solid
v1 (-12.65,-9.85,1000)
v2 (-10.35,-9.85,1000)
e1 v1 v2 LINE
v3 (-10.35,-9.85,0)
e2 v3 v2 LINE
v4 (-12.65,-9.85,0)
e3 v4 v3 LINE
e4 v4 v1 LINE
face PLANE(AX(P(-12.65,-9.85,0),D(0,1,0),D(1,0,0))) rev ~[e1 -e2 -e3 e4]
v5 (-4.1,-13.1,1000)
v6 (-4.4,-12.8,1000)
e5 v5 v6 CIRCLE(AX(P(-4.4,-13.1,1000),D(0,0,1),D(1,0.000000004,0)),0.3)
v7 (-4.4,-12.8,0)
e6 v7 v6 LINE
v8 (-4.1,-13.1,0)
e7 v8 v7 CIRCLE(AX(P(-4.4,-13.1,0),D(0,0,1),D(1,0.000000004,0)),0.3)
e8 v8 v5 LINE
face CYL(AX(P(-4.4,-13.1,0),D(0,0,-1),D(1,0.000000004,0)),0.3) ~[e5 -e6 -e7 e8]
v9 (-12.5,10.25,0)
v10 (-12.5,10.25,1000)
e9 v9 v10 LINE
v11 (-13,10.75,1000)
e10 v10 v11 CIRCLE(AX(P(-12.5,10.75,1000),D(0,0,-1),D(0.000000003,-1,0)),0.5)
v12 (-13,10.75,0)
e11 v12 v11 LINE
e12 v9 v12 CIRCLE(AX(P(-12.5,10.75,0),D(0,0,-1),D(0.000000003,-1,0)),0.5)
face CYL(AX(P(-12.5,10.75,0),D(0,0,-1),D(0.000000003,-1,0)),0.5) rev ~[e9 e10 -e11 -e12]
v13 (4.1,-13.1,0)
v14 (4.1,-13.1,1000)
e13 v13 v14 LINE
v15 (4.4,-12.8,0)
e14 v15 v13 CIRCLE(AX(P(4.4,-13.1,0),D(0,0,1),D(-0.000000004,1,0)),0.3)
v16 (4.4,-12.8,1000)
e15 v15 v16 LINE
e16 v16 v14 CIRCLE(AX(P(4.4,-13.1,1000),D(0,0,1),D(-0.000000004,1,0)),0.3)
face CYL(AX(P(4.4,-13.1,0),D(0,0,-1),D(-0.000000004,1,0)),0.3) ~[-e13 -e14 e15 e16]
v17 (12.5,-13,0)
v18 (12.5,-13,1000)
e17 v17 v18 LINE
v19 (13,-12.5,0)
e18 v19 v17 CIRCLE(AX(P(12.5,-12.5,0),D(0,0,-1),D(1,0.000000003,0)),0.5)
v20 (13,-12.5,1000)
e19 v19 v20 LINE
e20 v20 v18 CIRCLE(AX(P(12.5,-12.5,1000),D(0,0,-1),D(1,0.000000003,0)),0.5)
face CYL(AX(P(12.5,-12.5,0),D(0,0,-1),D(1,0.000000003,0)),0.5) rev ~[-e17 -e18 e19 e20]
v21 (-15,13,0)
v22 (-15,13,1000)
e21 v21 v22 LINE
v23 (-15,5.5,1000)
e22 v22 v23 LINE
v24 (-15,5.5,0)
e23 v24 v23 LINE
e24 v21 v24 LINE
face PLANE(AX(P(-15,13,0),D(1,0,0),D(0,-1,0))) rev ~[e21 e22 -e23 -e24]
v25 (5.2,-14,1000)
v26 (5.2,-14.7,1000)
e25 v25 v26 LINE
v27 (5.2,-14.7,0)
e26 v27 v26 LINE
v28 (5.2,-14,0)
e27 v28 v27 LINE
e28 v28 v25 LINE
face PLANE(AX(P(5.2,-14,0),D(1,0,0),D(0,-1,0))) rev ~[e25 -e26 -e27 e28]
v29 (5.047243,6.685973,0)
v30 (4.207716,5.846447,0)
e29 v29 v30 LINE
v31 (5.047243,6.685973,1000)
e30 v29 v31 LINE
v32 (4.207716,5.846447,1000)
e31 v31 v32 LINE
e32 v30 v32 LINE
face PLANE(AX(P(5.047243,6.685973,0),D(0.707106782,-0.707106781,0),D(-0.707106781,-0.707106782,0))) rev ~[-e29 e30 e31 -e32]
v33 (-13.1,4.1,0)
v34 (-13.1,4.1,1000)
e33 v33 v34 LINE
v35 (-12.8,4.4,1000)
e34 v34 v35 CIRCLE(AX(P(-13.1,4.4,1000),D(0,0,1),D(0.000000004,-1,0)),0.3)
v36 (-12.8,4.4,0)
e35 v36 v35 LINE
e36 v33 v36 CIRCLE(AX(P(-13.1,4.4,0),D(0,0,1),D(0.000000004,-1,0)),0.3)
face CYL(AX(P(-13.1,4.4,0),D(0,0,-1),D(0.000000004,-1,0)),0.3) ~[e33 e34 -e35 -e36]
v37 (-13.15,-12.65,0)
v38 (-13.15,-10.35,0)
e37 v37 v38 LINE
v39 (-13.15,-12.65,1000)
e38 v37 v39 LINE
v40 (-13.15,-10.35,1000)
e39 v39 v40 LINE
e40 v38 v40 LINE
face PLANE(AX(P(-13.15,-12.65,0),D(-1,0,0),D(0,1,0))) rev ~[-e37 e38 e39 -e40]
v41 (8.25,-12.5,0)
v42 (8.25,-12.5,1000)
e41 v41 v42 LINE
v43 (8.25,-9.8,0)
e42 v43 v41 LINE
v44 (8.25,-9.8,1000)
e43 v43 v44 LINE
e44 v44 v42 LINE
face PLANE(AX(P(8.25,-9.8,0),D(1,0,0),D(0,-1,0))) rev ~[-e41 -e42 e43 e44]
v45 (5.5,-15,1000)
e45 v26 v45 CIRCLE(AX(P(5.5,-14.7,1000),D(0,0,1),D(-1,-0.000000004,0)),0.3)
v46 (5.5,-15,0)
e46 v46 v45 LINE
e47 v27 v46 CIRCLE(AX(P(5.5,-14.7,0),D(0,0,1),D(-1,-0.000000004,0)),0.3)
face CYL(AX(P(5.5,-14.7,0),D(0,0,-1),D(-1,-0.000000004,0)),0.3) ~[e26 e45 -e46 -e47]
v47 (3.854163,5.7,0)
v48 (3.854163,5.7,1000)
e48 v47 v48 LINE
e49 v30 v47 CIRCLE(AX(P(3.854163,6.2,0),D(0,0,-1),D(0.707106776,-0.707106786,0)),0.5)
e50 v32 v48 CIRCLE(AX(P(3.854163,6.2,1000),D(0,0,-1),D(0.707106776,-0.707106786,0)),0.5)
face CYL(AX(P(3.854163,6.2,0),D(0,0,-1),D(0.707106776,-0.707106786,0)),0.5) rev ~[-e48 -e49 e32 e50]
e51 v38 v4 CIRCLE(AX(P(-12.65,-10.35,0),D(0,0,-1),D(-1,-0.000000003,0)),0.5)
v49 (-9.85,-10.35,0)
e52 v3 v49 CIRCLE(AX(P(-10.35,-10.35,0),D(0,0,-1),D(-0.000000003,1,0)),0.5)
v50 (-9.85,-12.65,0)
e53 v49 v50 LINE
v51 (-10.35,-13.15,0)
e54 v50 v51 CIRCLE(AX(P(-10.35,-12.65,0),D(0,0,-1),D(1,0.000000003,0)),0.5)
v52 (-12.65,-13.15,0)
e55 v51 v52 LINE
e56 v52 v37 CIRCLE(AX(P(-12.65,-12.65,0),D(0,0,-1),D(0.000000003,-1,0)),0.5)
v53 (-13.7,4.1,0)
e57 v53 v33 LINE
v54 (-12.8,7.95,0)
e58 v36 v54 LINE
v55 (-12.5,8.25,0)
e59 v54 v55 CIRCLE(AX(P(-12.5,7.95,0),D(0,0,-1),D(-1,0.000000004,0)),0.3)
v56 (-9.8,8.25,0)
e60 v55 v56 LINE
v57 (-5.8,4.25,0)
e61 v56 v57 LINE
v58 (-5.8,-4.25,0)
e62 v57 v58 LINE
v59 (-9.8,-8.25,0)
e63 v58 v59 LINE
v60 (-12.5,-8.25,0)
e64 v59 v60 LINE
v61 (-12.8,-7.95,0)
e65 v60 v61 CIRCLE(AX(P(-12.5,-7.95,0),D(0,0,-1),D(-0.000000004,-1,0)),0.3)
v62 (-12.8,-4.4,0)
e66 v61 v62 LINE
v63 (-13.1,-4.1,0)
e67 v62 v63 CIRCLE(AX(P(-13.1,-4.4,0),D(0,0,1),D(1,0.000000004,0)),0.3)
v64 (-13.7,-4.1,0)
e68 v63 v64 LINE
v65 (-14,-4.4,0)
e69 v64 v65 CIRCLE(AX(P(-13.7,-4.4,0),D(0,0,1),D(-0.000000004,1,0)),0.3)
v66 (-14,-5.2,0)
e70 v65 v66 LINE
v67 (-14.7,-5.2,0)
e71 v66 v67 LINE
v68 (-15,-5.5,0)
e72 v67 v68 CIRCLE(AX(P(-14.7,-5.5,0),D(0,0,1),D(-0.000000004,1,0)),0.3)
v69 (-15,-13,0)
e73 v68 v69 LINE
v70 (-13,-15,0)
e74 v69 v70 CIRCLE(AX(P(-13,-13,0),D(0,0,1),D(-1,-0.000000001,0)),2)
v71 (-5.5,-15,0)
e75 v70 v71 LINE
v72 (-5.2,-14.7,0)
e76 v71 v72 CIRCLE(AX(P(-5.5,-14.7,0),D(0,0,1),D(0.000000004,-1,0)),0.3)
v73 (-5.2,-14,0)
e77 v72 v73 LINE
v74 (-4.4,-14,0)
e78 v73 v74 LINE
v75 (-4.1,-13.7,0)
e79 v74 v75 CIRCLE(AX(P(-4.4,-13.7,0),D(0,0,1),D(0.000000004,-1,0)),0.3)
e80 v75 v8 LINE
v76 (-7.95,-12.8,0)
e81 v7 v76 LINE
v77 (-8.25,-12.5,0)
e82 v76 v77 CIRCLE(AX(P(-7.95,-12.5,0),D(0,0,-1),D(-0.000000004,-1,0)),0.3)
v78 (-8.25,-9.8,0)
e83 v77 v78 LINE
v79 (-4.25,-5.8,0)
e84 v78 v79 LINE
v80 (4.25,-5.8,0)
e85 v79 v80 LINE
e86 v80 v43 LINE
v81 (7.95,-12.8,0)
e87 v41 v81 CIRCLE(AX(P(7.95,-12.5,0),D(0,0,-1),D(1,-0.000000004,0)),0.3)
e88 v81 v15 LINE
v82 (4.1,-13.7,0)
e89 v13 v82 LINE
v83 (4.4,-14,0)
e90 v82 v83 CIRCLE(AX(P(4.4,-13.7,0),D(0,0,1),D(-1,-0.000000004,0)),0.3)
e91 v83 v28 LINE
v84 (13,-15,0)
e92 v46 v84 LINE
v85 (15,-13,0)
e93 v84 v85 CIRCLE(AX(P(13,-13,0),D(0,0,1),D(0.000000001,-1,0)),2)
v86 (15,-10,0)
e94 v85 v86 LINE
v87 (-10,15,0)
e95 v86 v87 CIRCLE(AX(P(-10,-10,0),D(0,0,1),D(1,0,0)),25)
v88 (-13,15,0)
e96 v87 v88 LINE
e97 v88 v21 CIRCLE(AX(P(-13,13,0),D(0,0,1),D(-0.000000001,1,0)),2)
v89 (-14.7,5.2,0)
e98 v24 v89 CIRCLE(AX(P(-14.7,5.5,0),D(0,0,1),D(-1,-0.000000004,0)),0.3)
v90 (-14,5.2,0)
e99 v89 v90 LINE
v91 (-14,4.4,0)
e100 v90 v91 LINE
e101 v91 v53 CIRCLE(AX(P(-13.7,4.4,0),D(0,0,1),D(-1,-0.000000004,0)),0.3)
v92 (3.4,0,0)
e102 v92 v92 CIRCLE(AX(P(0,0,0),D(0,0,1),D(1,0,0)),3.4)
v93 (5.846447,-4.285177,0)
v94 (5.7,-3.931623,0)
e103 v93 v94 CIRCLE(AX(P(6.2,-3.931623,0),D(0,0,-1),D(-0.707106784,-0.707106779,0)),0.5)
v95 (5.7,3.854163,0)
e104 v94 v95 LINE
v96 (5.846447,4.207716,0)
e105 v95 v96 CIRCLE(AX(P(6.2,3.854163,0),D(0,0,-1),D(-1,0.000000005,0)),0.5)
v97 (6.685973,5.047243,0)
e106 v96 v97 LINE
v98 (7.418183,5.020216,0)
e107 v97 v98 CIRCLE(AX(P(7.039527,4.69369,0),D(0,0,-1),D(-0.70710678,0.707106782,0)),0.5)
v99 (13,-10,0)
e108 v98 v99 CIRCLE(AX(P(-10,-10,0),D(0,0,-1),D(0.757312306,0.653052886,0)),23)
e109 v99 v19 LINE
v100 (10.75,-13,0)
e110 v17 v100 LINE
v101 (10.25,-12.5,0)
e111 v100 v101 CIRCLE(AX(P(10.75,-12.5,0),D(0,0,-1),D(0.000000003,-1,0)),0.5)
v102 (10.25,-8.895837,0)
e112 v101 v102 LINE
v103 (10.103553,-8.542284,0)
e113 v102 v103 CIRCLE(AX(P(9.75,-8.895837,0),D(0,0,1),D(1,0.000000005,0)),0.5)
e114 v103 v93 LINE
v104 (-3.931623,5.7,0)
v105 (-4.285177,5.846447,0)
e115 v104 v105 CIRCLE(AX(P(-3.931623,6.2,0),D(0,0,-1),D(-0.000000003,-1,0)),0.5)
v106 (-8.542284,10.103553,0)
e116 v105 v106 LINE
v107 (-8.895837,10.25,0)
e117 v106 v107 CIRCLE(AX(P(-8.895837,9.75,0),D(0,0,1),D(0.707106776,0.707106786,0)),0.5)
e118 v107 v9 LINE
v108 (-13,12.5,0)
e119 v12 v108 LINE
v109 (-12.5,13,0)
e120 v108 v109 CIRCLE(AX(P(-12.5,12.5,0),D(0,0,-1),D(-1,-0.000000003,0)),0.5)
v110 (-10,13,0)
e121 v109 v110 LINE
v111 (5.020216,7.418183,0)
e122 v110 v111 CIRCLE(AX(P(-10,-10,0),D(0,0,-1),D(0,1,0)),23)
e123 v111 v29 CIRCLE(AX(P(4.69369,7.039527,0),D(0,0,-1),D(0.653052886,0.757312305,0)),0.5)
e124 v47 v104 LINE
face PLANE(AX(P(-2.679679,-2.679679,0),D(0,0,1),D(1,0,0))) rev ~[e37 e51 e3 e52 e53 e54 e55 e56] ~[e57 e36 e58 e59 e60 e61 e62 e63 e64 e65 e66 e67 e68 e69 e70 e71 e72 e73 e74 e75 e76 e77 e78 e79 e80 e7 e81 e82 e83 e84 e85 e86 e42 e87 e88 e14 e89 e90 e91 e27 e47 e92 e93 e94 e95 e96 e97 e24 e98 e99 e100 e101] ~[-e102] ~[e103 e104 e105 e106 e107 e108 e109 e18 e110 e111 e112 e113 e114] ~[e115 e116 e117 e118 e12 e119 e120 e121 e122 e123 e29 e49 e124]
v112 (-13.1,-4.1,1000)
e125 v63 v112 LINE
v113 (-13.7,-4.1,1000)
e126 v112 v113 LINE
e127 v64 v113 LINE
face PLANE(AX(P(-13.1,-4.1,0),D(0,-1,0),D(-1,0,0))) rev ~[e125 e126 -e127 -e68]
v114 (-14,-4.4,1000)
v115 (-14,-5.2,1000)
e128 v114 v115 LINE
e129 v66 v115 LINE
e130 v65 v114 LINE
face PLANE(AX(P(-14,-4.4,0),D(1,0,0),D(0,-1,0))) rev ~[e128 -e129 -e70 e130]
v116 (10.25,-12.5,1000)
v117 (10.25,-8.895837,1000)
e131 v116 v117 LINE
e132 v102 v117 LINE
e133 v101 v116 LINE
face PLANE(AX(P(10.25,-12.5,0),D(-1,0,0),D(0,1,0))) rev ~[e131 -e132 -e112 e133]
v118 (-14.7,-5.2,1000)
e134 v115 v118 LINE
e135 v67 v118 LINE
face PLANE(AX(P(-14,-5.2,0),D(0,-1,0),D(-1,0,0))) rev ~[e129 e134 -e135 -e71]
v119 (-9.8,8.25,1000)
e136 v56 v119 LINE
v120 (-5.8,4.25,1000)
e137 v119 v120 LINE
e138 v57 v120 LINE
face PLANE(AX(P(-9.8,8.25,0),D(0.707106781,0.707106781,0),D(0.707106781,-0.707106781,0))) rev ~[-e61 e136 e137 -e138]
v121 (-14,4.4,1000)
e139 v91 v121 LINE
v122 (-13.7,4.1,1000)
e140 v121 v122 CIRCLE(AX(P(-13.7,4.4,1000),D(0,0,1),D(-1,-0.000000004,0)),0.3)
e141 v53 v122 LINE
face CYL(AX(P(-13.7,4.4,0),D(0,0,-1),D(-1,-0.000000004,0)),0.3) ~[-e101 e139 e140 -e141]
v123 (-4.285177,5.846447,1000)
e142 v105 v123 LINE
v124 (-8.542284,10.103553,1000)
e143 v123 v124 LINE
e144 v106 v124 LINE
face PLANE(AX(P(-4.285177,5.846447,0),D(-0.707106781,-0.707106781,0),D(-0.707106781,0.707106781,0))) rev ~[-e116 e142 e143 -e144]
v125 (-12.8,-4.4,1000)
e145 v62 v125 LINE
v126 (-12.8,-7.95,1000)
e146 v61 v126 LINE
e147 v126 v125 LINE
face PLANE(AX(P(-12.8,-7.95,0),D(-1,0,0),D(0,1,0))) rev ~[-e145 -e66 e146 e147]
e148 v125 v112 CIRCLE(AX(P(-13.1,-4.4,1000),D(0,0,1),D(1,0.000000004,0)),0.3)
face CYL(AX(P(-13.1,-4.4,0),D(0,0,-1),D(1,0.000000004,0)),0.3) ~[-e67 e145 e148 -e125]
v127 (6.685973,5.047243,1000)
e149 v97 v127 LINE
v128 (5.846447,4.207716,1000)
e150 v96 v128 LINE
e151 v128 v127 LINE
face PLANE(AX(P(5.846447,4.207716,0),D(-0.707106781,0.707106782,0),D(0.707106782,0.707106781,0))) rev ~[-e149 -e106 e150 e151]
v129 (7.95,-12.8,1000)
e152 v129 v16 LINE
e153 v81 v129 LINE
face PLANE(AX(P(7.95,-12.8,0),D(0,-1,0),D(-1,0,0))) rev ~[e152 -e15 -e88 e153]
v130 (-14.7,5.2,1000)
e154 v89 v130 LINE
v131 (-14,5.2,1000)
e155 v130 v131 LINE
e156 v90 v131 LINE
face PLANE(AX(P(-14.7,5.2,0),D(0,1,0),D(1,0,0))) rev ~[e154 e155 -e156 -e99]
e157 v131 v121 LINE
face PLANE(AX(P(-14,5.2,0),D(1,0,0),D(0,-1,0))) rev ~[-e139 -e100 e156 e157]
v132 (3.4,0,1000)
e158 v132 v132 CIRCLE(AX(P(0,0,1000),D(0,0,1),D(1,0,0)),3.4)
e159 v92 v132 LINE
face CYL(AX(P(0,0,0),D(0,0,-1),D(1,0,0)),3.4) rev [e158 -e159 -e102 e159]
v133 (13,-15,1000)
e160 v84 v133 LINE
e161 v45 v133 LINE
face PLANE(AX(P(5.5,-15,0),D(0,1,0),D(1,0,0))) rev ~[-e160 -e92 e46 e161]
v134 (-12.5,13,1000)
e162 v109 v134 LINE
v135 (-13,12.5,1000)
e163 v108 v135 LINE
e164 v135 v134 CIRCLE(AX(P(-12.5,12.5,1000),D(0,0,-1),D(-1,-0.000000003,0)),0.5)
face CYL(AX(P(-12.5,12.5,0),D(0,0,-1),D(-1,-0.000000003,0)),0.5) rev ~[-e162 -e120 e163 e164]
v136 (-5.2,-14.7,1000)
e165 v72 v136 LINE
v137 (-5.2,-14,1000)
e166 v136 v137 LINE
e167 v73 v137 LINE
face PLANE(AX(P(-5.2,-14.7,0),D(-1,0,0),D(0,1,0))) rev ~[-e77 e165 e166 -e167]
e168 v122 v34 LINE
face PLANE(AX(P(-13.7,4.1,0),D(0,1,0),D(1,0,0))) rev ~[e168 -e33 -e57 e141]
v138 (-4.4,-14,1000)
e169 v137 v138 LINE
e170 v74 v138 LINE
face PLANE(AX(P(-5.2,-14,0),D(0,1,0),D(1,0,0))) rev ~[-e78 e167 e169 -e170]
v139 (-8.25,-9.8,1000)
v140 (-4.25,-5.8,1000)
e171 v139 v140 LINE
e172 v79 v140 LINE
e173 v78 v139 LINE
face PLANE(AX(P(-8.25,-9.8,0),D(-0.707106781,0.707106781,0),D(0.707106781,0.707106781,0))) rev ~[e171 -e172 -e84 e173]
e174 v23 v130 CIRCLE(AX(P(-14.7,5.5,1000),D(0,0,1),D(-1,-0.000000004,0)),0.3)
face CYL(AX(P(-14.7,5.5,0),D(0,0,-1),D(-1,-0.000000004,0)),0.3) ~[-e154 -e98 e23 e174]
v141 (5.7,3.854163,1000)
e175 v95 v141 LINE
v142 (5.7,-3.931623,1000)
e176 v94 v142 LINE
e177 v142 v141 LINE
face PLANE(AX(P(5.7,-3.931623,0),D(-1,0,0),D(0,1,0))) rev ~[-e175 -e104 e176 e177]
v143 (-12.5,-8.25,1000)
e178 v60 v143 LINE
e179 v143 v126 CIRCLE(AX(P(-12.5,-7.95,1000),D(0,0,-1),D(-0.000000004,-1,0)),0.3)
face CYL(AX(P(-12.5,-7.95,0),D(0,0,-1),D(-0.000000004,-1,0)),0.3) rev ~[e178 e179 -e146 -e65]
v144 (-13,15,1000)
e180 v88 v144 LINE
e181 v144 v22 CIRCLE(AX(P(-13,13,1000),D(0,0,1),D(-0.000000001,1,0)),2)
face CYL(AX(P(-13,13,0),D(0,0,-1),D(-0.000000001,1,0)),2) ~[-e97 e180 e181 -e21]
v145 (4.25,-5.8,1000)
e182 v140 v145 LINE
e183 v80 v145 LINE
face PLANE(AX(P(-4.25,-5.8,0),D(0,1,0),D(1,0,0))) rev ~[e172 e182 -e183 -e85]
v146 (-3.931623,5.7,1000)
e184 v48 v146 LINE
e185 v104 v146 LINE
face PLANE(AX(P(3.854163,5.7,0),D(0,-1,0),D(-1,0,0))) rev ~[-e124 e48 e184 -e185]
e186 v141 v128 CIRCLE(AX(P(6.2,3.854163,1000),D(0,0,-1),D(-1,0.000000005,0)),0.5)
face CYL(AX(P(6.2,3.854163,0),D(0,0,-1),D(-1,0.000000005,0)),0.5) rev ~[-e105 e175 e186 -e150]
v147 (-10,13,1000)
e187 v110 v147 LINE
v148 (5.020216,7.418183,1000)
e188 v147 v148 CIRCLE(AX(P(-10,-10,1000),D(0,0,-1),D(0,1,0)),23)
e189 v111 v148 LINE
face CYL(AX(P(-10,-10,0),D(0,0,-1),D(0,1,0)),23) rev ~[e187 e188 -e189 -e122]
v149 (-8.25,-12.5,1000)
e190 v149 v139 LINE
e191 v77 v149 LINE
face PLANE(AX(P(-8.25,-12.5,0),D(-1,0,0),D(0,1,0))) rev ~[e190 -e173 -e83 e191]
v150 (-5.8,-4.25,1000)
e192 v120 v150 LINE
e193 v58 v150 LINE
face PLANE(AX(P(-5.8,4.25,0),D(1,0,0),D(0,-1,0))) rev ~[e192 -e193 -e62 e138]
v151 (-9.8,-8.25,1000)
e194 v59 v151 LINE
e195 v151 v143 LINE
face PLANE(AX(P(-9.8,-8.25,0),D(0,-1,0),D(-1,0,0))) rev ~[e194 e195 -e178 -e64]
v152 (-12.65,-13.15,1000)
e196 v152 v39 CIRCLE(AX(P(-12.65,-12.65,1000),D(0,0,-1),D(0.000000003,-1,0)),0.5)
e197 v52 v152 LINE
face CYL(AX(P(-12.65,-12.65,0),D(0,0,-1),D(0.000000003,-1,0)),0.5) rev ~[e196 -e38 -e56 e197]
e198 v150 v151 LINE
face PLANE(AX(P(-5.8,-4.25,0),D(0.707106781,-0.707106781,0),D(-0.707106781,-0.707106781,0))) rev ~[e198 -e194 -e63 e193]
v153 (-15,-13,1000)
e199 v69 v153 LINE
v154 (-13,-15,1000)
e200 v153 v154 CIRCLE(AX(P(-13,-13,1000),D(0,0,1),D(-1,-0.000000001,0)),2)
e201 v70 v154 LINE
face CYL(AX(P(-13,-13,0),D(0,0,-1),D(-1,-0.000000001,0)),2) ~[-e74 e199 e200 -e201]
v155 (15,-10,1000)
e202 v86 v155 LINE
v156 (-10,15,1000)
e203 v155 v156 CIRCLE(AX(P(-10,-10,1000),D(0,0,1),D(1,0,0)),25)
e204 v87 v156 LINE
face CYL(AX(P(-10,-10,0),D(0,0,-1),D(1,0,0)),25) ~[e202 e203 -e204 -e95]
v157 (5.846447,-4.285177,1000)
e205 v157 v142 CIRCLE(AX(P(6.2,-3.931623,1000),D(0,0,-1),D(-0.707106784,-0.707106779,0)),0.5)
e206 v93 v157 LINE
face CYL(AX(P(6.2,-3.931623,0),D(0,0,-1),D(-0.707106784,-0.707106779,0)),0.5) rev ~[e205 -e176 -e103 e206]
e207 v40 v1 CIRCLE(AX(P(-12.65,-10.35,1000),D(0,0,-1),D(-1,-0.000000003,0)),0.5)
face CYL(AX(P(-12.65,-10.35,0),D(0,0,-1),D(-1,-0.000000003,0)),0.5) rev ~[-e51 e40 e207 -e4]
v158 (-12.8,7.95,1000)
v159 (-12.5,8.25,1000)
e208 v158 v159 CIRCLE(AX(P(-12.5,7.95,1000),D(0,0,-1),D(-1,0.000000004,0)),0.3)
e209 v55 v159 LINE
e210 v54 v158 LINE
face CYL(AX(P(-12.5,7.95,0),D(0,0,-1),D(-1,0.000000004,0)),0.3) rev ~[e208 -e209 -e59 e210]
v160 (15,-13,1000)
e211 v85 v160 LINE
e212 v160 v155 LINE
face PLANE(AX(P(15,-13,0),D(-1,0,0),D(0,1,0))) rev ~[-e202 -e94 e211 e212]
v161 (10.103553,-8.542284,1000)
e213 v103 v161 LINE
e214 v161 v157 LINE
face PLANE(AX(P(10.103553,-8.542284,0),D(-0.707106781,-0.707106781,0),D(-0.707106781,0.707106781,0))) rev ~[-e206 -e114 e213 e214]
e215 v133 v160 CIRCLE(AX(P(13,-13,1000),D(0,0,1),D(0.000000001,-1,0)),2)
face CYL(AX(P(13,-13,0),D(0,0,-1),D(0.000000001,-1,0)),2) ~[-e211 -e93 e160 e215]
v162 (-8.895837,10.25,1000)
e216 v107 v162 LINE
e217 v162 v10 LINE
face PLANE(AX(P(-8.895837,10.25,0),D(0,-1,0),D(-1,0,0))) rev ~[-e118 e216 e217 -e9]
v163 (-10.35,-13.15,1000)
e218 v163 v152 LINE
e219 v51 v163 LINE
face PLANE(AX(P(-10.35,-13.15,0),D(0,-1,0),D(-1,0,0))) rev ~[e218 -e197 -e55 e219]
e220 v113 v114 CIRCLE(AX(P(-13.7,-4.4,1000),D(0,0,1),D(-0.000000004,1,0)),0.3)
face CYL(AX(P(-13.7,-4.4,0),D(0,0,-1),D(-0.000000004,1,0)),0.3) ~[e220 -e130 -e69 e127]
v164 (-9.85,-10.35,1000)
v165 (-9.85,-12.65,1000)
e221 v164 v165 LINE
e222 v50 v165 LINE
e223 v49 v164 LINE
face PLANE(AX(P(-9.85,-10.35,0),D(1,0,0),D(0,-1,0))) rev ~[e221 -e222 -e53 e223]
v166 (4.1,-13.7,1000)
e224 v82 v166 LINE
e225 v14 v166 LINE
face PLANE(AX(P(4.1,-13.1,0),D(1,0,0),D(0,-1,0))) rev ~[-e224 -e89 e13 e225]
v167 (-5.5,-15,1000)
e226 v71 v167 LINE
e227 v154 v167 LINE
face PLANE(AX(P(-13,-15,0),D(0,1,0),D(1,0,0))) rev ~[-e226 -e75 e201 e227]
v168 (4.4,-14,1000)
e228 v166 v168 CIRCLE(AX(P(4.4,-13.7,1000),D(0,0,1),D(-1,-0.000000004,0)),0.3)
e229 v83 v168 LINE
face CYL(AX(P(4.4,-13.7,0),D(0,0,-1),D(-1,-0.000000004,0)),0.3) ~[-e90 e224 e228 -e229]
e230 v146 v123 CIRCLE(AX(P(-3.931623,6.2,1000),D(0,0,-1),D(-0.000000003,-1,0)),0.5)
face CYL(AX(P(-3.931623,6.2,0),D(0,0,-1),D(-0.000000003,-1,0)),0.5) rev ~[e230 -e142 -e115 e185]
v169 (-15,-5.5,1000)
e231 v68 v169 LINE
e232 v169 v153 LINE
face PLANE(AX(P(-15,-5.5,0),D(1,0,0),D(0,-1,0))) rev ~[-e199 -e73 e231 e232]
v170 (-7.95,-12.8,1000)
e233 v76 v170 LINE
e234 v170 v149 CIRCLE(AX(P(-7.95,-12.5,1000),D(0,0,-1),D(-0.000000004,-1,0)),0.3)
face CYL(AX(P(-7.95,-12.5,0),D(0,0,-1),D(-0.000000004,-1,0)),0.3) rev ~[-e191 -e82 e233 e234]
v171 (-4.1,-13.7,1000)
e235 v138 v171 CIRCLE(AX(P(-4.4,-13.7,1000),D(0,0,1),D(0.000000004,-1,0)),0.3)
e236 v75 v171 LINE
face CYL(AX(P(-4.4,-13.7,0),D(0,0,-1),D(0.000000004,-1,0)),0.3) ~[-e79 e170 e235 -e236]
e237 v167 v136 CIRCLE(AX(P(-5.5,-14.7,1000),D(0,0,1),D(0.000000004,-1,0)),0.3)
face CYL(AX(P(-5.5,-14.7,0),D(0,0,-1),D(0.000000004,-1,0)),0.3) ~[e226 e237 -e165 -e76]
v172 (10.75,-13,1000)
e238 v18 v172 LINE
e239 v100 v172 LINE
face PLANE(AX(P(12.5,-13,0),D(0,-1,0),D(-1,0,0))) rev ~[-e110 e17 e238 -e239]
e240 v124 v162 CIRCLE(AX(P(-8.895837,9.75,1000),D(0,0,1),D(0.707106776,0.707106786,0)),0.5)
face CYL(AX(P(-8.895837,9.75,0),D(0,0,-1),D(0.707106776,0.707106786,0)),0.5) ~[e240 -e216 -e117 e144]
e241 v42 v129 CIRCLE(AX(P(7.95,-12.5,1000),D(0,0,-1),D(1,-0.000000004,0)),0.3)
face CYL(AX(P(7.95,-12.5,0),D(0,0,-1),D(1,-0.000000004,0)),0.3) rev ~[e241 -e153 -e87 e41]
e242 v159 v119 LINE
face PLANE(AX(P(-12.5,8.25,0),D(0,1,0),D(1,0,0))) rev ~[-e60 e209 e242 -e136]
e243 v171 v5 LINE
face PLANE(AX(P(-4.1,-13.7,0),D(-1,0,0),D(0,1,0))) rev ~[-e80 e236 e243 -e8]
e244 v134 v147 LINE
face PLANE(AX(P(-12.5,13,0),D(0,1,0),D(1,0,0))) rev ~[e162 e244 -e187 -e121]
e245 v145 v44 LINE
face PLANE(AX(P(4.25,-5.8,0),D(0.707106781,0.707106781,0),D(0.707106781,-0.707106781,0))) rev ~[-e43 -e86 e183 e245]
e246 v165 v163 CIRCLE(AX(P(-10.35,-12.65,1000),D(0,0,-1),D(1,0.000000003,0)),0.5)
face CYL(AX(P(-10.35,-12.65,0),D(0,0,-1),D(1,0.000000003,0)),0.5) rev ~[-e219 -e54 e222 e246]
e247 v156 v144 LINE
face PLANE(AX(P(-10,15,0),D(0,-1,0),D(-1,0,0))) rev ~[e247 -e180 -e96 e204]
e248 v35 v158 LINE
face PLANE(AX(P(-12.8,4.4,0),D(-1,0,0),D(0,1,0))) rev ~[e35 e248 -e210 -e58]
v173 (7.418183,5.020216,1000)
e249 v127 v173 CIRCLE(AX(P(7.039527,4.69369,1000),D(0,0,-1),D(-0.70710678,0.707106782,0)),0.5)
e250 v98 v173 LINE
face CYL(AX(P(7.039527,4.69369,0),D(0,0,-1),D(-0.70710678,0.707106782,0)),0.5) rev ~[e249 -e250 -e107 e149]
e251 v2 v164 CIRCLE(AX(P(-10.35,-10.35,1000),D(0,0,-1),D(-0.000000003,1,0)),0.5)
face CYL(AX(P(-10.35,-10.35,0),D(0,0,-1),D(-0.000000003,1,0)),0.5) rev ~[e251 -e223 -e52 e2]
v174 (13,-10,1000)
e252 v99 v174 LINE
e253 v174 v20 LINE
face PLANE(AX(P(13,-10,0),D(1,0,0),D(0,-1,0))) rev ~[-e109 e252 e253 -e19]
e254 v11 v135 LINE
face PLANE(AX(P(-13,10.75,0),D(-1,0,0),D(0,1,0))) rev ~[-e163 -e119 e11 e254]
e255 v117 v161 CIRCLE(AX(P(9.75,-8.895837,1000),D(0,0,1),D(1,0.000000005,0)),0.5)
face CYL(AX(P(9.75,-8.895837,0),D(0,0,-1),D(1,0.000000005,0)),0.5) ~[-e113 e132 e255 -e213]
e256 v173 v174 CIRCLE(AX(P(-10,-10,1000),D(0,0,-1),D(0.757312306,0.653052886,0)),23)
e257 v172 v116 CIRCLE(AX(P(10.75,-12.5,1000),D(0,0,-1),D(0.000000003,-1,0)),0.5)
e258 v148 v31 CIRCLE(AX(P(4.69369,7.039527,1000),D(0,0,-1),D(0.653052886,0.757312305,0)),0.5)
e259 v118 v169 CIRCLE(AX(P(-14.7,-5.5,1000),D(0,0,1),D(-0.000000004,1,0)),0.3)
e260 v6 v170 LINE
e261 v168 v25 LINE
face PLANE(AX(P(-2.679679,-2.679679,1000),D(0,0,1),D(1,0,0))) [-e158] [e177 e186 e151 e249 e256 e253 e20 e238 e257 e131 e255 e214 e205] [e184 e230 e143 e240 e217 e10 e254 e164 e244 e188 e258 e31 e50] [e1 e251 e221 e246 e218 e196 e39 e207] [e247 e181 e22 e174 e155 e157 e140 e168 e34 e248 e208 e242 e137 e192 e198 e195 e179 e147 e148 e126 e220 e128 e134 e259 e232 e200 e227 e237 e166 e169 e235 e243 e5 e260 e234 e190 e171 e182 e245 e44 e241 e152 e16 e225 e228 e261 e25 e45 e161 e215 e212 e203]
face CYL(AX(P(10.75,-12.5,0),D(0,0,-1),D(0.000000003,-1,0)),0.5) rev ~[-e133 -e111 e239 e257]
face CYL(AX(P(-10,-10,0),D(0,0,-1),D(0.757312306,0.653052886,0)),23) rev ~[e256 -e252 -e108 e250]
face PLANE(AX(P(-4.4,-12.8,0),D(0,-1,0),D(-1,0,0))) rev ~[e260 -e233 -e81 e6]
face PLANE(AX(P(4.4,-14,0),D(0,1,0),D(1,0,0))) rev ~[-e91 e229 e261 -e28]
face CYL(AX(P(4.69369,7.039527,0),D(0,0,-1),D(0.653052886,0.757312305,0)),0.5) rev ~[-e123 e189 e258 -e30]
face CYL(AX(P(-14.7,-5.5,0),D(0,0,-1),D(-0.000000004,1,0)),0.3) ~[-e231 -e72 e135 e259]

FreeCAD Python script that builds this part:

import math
import FreeCAD as App
import Part
import Sketcher

doc = App.newDocument("Part")
body = doc.addObject("PartDesign::Body", "Body")

sketch1 = body.newObject("Sketcher::SketchObject", "Sketch")
sketch1.AttachmentSupport = (doc.getObject("XY_Plane"), [""])
sketch1.MapMode = "FlatFace"
sketch1.addGeometry(Part.LineSegment(App.Vector(-15, -5.5, 0), App.Vector(-15, -13, 0)), False)
sketch1.addGeometry(Part.ArcOfCircle(Part.Circle(App.Vector(-13, -13, 0), App.Vector(0, 0, 1), 2), math.radians(-180), math.radians(-90)), False)
sketch1.addGeometry(Part.LineSegment(App.Vector(-13, -15, 0), App.Vector(-5.5, -15, 0)), False)
sketch1.addGeometry(Part.ArcOfCircle(Part.Circle(App.Vector(-5.5, -14.7, 0), App.Vector(0, 0, 1), 0.3), math.radians(-90), math.radians(0)), False)
sketch1.addGeometry(Part.LineSegment(App.Vector(-5.2, -14.7, 0), App.Vector(-5.2, -14, 0)), False)
sketch1.addGeometry(Part.LineSegment(App.Vector(-5.2, -14, 0), App.Vector(-4.4, -14, 0)), False)
sketch1.addGeometry(Part.ArcOfCircle(Part.Circle(App.Vector(-4.4, -13.7, 0), App.Vector(0, 0, 1), 0.3), math.radians(-90), math.radians(0)), False)
sketch1.addGeometry(Part.LineSegment(App.Vector(-4.1, -13.7, 0), App.Vector(-4.1, -13.1, 0)), False)
sketch1.addGeometry(Part.ArcOfCircle(Part.Circle(App.Vector(-4.4, -13.1, 0), App.Vector(0, 0, 1), 0.3), math.radians(0), math.radians(90)), False)
sketch1.addGeometry(Part.LineSegment(App.Vector(-4.4, -12.8, 0), App.Vector(-7.95, -12.8, 0)), False)
sketch1.addGeometry(Part.ArcOfCircle(Part.Circle(App.Vector(-7.95, -12.5, 0), App.Vector(0, 0, 1), 0.3), math.radians(-180), math.radians(-90)), False)
sketch1.addGeometry(Part.LineSegment(App.Vector(-8.25, -12.5, 0), App.Vector(-8.25, -9.8, 0)), False)
sketch1.addGeometry(Part.LineSegment(App.Vector(-8.25, -9.8, 0), App.Vector(-4.25, -5.8, 0)), False)
sketch1.addGeometry(Part.LineSegment(App.Vector(-4.25, -5.8, 0), App.Vector(4.25, -5.8, 0)), False)
sketch1.addGeometry(Part.LineSegment(App.Vector(4.25, -5.8, 0), App.Vector(8.25, -9.8, 0)), False)
sketch1.addGeometry(Part.LineSegment(App.Vector(8.25, -9.8, 0), App.Vector(8.25, -12.5, 0)), False)
sketch1.addGeometry(Part.ArcOfCircle(Part.Circle(App.Vector(7.95, -12.5, 0), App.Vector(0, 0, 1), 0.3), math.radians(-90), math.radians(0)), False)
sketch1.addGeometry(Part.LineSegment(App.Vector(7.95, -12.8, 0), App.Vector(4.4, -12.8, 0)), False)
sketch1.addGeometry(Part.ArcOfCircle(Part.Circle(App.Vector(4.4, -13.1, 0), App.Vector(0, 0, 1), 0.3), math.radians(90), math.radians(180)), False)
sketch1.addGeometry(Part.LineSegment(App.Vector(4.1, -13.1, 0), App.Vector(4.1, -13.7, 0)), False)
sketch1.addGeometry(Part.ArcOfCircle(Part.Circle(App.Vector(4.4, -13.7, 0), App.Vector(0, 0, 1), 0.3), math.radians(-180), math.radians(-90)), False)
sketch1.addGeometry(Part.LineSegment(App.Vector(4.4, -14, 0), App.Vector(5.2, -14, 0)), False)
sketch1.addGeometry(Part.LineSegment(App.Vector(5.2, -14, 0), App.Vector(5.2, -14.7, 0)), False)
sketch1.addGeometry(Part.ArcOfCircle(Part.Circle(App.Vector(5.5, -14.7, 0), App.Vector(0, 0, 1), 0.3), math.radians(-180), math.radians(-90)), False)
sketch1.addGeometry(Part.LineSegment(App.Vector(5.5, -15, 0), App.Vector(13, -15, 0)), False)
sketch1.addGeometry(Part.ArcOfCircle(Part.Circle(App.Vector(13, -13, 0), App.Vector(0, 0, 1), 2), math.radians(-90), math.radians(0)), False)
sketch1.addGeometry(Part.LineSegment(App.Vector(15, -13, 0), App.Vector(15, -10, 0)), False)
sketch1.addGeometry(Part.ArcOfCircle(Part.Circle(App.Vector(-10, -10, 0), App.Vector(0, 0, 1), 25), math.radians(0), math.radians(90)), False)
sketch1.addGeometry(Part.LineSegment(App.Vector(-10, 15, 0), App.Vector(-13, 15, 0)), False)
sketch1.addGeometry(Part.ArcOfCircle(Part.Circle(App.Vector(-13, 13, 0), App.Vector(0, 0, 1), 2), math.radians(90), math.radians(180)), False)
sketch1.addGeometry(Part.LineSegment(App.Vector(-15, 13, 0), App.Vector(-15, 5.5, 0)), False)
sketch1.addGeometry(Part.ArcOfCircle(Part.Circle(App.Vector(-14.7, 5.5, 0), App.Vector(0, 0, 1), 0.3), math.radians(-180), math.radians(-90)), False)
sketch1.addGeometry(Part.LineSegment(App.Vector(-14.7, 5.2, 0), App.Vector(-14, 5.2, 0)), False)
sketch1.addGeometry(Part.LineSegment(App.Vector(-14, 5.2, 0), App.Vector(-14, 4.4, 0)), False)
sketch1.addGeometry(Part.ArcOfCircle(Part.Circle(App.Vector(-13.7, 4.4, 0), App.Vector(0, 0, 1), 0.3), math.radians(-180), math.radians(-90)), False)
sketch1.addGeometry(Part.LineSegment(App.Vector(-13.7, 4.1, 0), App.Vector(-13.1, 4.1, 0)), False)
sketch1.addGeometry(Part.ArcOfCircle(Part.Circle(App.Vector(-13.1, 4.4, 0), App.Vector(0, 0, 1), 0.3), math.radians(-90), math.radians(0)), False)
sketch1.addGeometry(Part.LineSegment(App.Vector(-12.8, 4.4, 0), App.Vector(-12.8, 7.95, 0)), False)
sketch1.addGeometry(Part.ArcOfCircle(Part.Circle(App.Vector(-12.5, 7.95, 0), App.Vector(0, 0, 1), 0.3), math.radians(90), math.radians(180)), False)
sketch1.addGeometry(Part.LineSegment(App.Vector(-12.5, 8.25, 0), App.Vector(-9.8, 8.25, 0)), False)
sketch1.addGeometry(Part.LineSegment(App.Vector(-9.8, 8.25, 0), App.Vector(-5.8, 4.25, 0)), False)
sketch1.addGeometry(Part.LineSegment(App.Vector(-5.8, 4.25, 0), App.Vector(-5.8, -4.25, 0)), False)
sketch1.addGeometry(Part.LineSegment(App.Vector(-5.8, -4.25, 0), App.Vector(-9.8, -8.25, 0)), False)
sketch1.addGeometry(Part.LineSegment(App.Vector(-9.8, -8.25, 0), App.Vector(-12.5, -8.25, 0)), False)
sketch1.addGeometry(Part.ArcOfCircle(Part.Circle(App.Vector(-12.5, -7.95, 0), App.Vector(0, 0, 1), 0.3), math.radians(-180), math.radians(-90)), False)
sketch1.addGeometry(Part.LineSegment(App.Vector(-12.8, -7.95, 0), App.Vector(-12.8, -4.4, 0)), False)
sketch1.addGeometry(Part.ArcOfCircle(Part.Circle(App.Vector(-13.1, -4.4, 0), App.Vector(0, 0, 1), 0.3), math.radians(0), math.radians(90)), False)
sketch1.addGeometry(Part.LineSegment(App.Vector(-13.1, -4.1, 0), App.Vector(-13.7, -4.1, 0)), False)
sketch1.addGeometry(Part.ArcOfCircle(Part.Circle(App.Vector(-13.7, -4.4, 0), App.Vector(0, 0, 1), 0.3), math.radians(90), math.radians(180)), False)
sketch1.addGeometry(Part.LineSegment(App.Vector(-14, -4.4, 0), App.Vector(-14, -5.2, 0)), False)
sketch1.addGeometry(Part.LineSegment(App.Vector(-14, -5.2, 0), App.Vector(-14.7, -5.2, 0)), False)
sketch1.addGeometry(Part.ArcOfCircle(Part.Circle(App.Vector(-14.7, -5.5, 0), App.Vector(0, 0, 1), 0.3), math.radians(90), math.radians(180)), False)
sketch1.addGeometry(Part.LineSegment(App.Vector(-13.15, -12.65, 0), App.Vector(-13.15, -10.35, 0)), False)
sketch1.addGeometry(Part.ArcOfCircle(Part.Circle(App.Vector(-12.65, -10.35, 0), App.Vector(0, 0, 1), 0.5), math.radians(90), math.radians(180)), False)
sketch1.addGeometry(Part.LineSegment(App.Vector(-12.65, -9.85, 0), App.Vector(-10.35, -9.85, 0)), False)
sketch1.addGeometry(Part.ArcOfCircle(Part.Circle(App.Vector(-10.35, -10.35, 0), App.Vector(0, 0, 1), 0.5), math.radians(0), math.radians(90)), False)
sketch1.addGeometry(Part.LineSegment(App.Vector(-9.85, -10.35, 0), App.Vector(-9.85, -12.65, 0)), False)
sketch1.addGeometry(Part.ArcOfCircle(Part.Circle(App.Vector(-10.35, -12.65, 0), App.Vector(0, 0, 1), 0.5), math.radians(-90), math.radians(0)), False)
sketch1.addGeometry(Part.LineSegment(App.Vector(-10.35, -13.15, 0), App.Vector(-12.65, -13.15, 0)), False)
sketch1.addGeometry(Part.ArcOfCircle(Part.Circle(App.Vector(-12.65, -12.65, 0), App.Vector(0, 0, 1), 0.5), math.radians(180), math.radians(270)), False)
sketch1.addGeometry(Part.ArcOfCircle(Part.Circle(App.Vector(-10, -10, 0), App.Vector(0, 0, 1), 23), math.radians(0), math.radians(41)), False)
sketch1.addGeometry(Part.LineSegment(App.Vector(13, -10, 0), App.Vector(13, -12.5, 0)), False)
sketch1.addGeometry(Part.ArcOfCircle(Part.Circle(App.Vector(12.5, -12.5, 0), App.Vector(0, 0, 1), 0.5), math.radians(-90), math.radians(0)), False)
sketch1.addGeometry(Part.LineSegment(App.Vector(12.5, -13, 0), App.Vector(10.75, -13, 0)), False)
sketch1.addGeometry(Part.ArcOfCircle(Part.Circle(App.Vector(10.75, -12.5, 0), App.Vector(0, 0, 1), 0.5), math.radians(180), math.radians(270)), False)
sketch1.addGeometry(Part.LineSegment(App.Vector(10.25, -12.5, 0), App.Vector(10.25, -8.9, 0)), False)
sketch1.addGeometry(Part.ArcOfCircle(Part.Circle(App.Vector(9.75, -8.9, 0), App.Vector(0, 0, 1), 0.5), math.radians(0), math.radians(45)), False)
sketch1.addGeometry(Part.LineSegment(App.Vector(10.1, -8.54, 0), App.Vector(5.85, -4.29, 0)), False)
sketch1.addGeometry(Part.ArcOfCircle(Part.Circle(App.Vector(6.2, -3.93, 0), App.Vector(0, 0, 1), 0.5), math.radians(-180), math.radians(-135)), False)
sketch1.addGeometry(Part.LineSegment(App.Vector(5.7, -3.93, 0), App.Vector(5.7, 3.85, 0)), False)
sketch1.addGeometry(Part.ArcOfCircle(Part.Circle(App.Vector(6.2, 3.85, 0), App.Vector(0, 0, 1), 0.5), math.radians(135), math.radians(180)), False)
sketch1.addGeometry(Part.LineSegment(App.Vector(5.85, 4.21, 0), App.Vector(6.69, 5.05, 0)), False)
sketch1.addGeometry(Part.ArcOfCircle(Part.Circle(App.Vector(7.04, 4.69, 0), App.Vector(0, 0, 1), 0.5), math.radians(41), math.radians(135)), False)
sketch1.addGeometry(Part.ArcOfCircle(Part.Circle(App.Vector(-12.5, 10.75, 0), App.Vector(0, 0, 1), 0.5), math.radians(180), math.radians(270)), False)
sketch1.addGeometry(Part.LineSegment(App.Vector(-13, 10.75, 0), App.Vector(-13, 12.5, 0)), False)
sketch1.addGeometry(Part.ArcOfCircle(Part.Circle(App.Vector(-12.5, 12.5, 0), App.Vector(0, 0, 1), 0.5), math.radians(90), math.radians(180)), False)
sketch1.addGeometry(Part.LineSegment(App.Vector(-12.5, 13, 0), App.Vector(-10, 13, 0)), False)
sketch1.addGeometry(Part.ArcOfCircle(Part.Circle(App.Vector(-10, -10, 0), App.Vector(0, 0, 1), 23), math.radians(49), math.radians(90)), False)
sketch1.addGeometry(Part.ArcOfCircle(Part.Circle(App.Vector(4.69, 7.04, 0), App.Vector(0, 0, 1), 0.5), math.radians(-45), math.radians(49)), False)
sketch1.addGeometry(Part.LineSegment(App.Vector(5.05, 6.69, 0), App.Vector(4.21, 5.85, 0)), False)
sketch1.addGeometry(Part.ArcOfCircle(Part.Circle(App.Vector(3.85, 6.2, 0), App.Vector(0, 0, 1), 0.5), math.radians(-90), math.radians(-45)), False)
sketch1.addGeometry(Part.LineSegment(App.Vector(3.85, 5.7, 0), App.Vector(-3.93, 5.7, 0)), False)
sketch1.addGeometry(Part.ArcOfCircle(Part.Circle(App.Vector(-3.93, 6.2, 0), App.Vector(0, 0, 1), 0.5), math.radians(-135), math.radians(-90)), False)
sketch1.addGeometry(Part.LineSegment(App.Vector(-4.29, 5.85, 0), App.Vector(-8.54, 10.1, 0)), False)
sketch1.addGeometry(Part.ArcOfCircle(Part.Circle(App.Vector(-8.9, 9.75, 0), App.Vector(0, 0, 1), 0.5), math.radians(45), math.radians(90)), False)
sketch1.addGeometry(Part.LineSegment(App.Vector(-8.9, 10.25, 0), App.Vector(-12.5, 10.25, 0)), False)
sketch1.addGeometry(Part.Circle(App.Vector(0, 0, 0), App.Vector(0, 0, 1), 3.4), False)
sketch1.addConstraint(Sketcher.Constraint("Tangent", 0, 2, 1, 1))
sketch1.addConstraint(Sketcher.Constraint("Tangent", 1, 2, 2, 1))
sketch1.addConstraint(Sketcher.Constraint("Tangent", 2, 2, 3, 1))
sketch1.addConstraint(Sketcher.Constraint("Tangent", 3, 2, 4, 1))
sketch1.addConstraint(Sketcher.Constraint("Coincident", 4, 2, 5, 1))
sketch1.addConstraint(Sketcher.Constraint("Tangent", 5, 2, 6, 1))
sketch1.addConstraint(Sketcher.Constraint("Tangent", 6, 2, 7, 1))
sketch1.addConstraint(Sketcher.Constraint("Tangent", 7, 2, 8, 1))
sketch1.addConstraint(Sketcher.Constraint("Tangent", 8, 2, 9, 1))
sketch1.addConstraint(Sketcher.Constraint("Tangent", 9, 2, 10, 2))
sketch1.addConstraint(Sketcher.Constraint("Tangent", 10, 1, 11, 1))
sketch1.addConstraint(Sketcher.Constraint("Coincident", 11, 2, 12, 1))
sketch1.addConstraint(Sketcher.Constraint("Coincident", 12, 2, 13, 1))
sketch1.addConstraint(Sketcher.Constraint("Coincident", 13, 2, 14, 1))
sketch1.addConstraint(Sketcher.Constraint("Coincident", 14, 2, 15, 1))
sketch1.addConstraint(Sketcher.Constraint("Tangent", 15, 2, 16, 2))
sketch1.addConstraint(Sketcher.Constraint("Tangent", 16, 1, 17, 1))
sketch1.addConstraint(Sketcher.Constraint("Tangent", 17, 2, 18, 1))
sketch1.addConstraint(Sketcher.Constraint("Tangent", 18, 2, 19, 1))
sketch1.addConstraint(Sketcher.Constraint("Tangent", 19, 2, 20, 1))
sketch1.addConstraint(Sketcher.Constraint("Tangent", 20, 2, 21, 1))
sketch1.addConstraint(Sketcher.Constraint("Coincident", 21, 2, 22, 1))
sketch1.addConstraint(Sketcher.Constraint("Tangent", 22, 2, 23, 1))
sketch1.addConstraint(Sketcher.Constraint("Tangent", 23, 2, 24, 1))
sketch1.addConstraint(Sketcher.Constraint("Tangent", 24, 2, 25, 1))
sketch1.addConstraint(Sketcher.Constraint("Tangent", 25, 2, 26, 1))
sketch1.addConstraint(Sketcher.Constraint("Tangent", 26, 2, 27, 1))
sketch1.addConstraint(Sketcher.Constraint("Tangent", 27, 2, 28, 1))
sketch1.addConstraint(Sketcher.Constraint("Tangent", 28, 2, 29, 1))
sketch1.addConstraint(Sketcher.Constraint("Tangent", 29, 2, 30, 1))
sketch1.addConstraint(Sketcher.Constraint("Tangent", 30, 2, 31, 1))
sketch1.addConstraint(Sketcher.Constraint("Tangent", 31, 2, 32, 1))
sketch1.addConstraint(Sketcher.Constraint("Coincident", 32, 2, 33, 1))
sketch1.addConstraint(Sketcher.Constraint("Tangent", 33, 2, 34, 1))
sketch1.addConstraint(Sketcher.Constraint("Tangent", 34, 2, 35, 1))
sketch1.addConstraint(Sketcher.Constraint("Tangent", 35, 2, 36, 1))
sketch1.addConstraint(Sketcher.Constraint("Tangent", 36, 2, 37, 1))
sketch1.addConstraint(Sketcher.Constraint("Tangent", 37, 2, 38, 2))
sketch1.addConstraint(Sketcher.Constraint("Tangent", 38, 1, 39, 1))
sketch1.addConstraint(Sketcher.Constraint("Coincident", 39, 2, 40, 1))
sketch1.addConstraint(Sketcher.Constraint("Coincident", 40, 2, 41, 1))
sketch1.addConstraint(Sketcher.Constraint("Coincident", 41, 2, 42, 1))
sketch1.addConstraint(Sketcher.Constraint("Coincident", 42, 2, 43, 1))
sketch1.addConstraint(Sketcher.Constraint("Tangent", 43, 2, 44, 2))
sketch1.addConstraint(Sketcher.Constraint("Tangent", 44, 1, 45, 1))
sketch1.addConstraint(Sketcher.Constraint("Tangent", 45, 2, 46, 1))
sketch1.addConstraint(Sketcher.Constraint("Tangent", 46, 2, 47, 1))
sketch1.addConstraint(Sketcher.Constraint("Tangent", 47, 2, 48, 1))
sketch1.addConstraint(Sketcher.Constraint("Tangent", 48, 2, 49, 1))
sketch1.addConstraint(Sketcher.Constraint("Coincident", 49, 2, 50, 1))
sketch1.addConstraint(Sketcher.Constraint("Tangent", 50, 2, 51, 1))
sketch1.addConstraint(Sketcher.Constraint("Tangent", 51, 2, 0, 1))
sketch1.addConstraint(Sketcher.Constraint("Tangent", 52, 2, 53, 2))
sketch1.addConstraint(Sketcher.Constraint("Tangent", 53, 1, 54, 1))
sketch1.addConstraint(Sketcher.Constraint("Tangent", 54, 2, 55, 2))
sketch1.addConstraint(Sketcher.Constraint("Tangent", 55, 1, 56, 1))
sketch1.addConstraint(Sketcher.Constraint("Tangent", 56, 2, 57, 2))
sketch1.addConstraint(Sketcher.Constraint("Tangent", 57, 1, 58, 1))
sketch1.addConstraint(Sketcher.Constraint("Tangent", 58, 2, 59, 2))
sketch1.addConstraint(Sketcher.Constraint("Tangent", 59, 1, 52, 1))
sketch1.addConstraint(Sketcher.Constraint("Tangent", 60, 1, 61, 1))
sketch1.addConstraint(Sketcher.Constraint("Tangent", 61, 2, 62, 2))
sketch1.addConstraint(Sketcher.Constraint("Tangent", 62, 1, 63, 1))
sketch1.addConstraint(Sketcher.Constraint("Tangent", 63, 2, 64, 2))
sketch1.addConstraint(Sketcher.Constraint("Tangent", 64, 1, 65, 1))
sketch1.addConstraint(Sketcher.Constraint("Tangent", 65, 2, 66, 1))
sketch1.addConstraint(Sketcher.Constraint("Tangent", 66, 2, 67, 1))
sketch1.addConstraint(Sketcher.Constraint("Tangent", 67, 2, 68, 2))
sketch1.addConstraint(Sketcher.Constraint("Tangent", 68, 1, 69, 1))
sketch1.addConstraint(Sketcher.Constraint("Tangent", 69, 2, 70, 2))
sketch1.addConstraint(Sketcher.Constraint("Tangent", 70, 1, 71, 1))
sketch1.addConstraint(Sketcher.Constraint("Tangent", 71, 2, 72, 2))
sketch1.addConstraint(Sketcher.Constraint("Tangent", 72, 1, 60, 2))
sketch1.addConstraint(Sketcher.Constraint("Tangent", 73, 1, 74, 1))
sketch1.addConstraint(Sketcher.Constraint("Tangent", 74, 2, 75, 2))
sketch1.addConstraint(Sketcher.Constraint("Tangent", 75, 1, 76, 1))
sketch1.addConstraint(Sketcher.Constraint("Tangent", 76, 2, 77, 2))
sketch1.addConstraint(Sketcher.Constraint("Tangent", 77, 1, 78, 2))
sketch1.addConstraint(Sketcher.Constraint("Tangent", 78, 1, 79, 1))
sketch1.addConstraint(Sketcher.Constraint("Tangent", 79, 2, 80, 2))
sketch1.addConstraint(Sketcher.Constraint("Tangent", 80, 1, 81, 1))
sketch1.addConstraint(Sketcher.Constraint("Tangent", 81, 2, 82, 2))
sketch1.addConstraint(Sketcher.Constraint("Tangent", 82, 1, 83, 1))
sketch1.addConstraint(Sketcher.Constraint("Tangent", 83, 2, 84, 1))
sketch1.addConstraint(Sketcher.Constraint("Tangent", 84, 2, 85, 1))
sketch1.addConstraint(Sketcher.Constraint("Tangent", 85, 2, 73, 2))
sketch1.addConstraint(Sketcher.Constraint("Vertical", 0))
sketch1.addConstraint(Sketcher.Constraint("Horizontal", 2))
sketch1.addConstraint(Sketcher.Constraint("Vertical", 4))
sketch1.addConstraint(Sketcher.Constraint("Horizontal", 5))
sketch1.addConstraint(Sketcher.Constraint("Vertical", 7))
sketch1.addConstraint(Sketcher.Constraint("Horizontal", 9))
sketch1.addConstraint(Sketcher.Constraint("Vertical", 11))
sketch1.addConstraint(Sketcher.Constraint("Horizontal", 13))
sketch1.addConstraint(Sketcher.Constraint("Vertical", 15))
sketch1.addConstraint(Sketcher.Constraint("Horizontal", 17))
sketch1.addConstraint(Sketcher.Constraint("Vertical", 19))
sketch1.addConstraint(Sketcher.Constraint("Horizontal", 21))
sketch1.addConstraint(Sketcher.Constraint("Vertical", 22))
sketch1.addConstraint(Sketcher.Constraint("Horizontal", 24))
sketch1.addConstraint(Sketcher.Constraint("Vertical", 26))
sketch1.addConstraint(Sketcher.Constraint("Horizontal", 28))
sketch1.addConstraint(Sketcher.Constraint("Vertical", 30))
sketch1.addConstraint(Sketcher.Constraint("Horizontal", 32))
sketch1.addConstraint(Sketcher.Constraint("Vertical", 33))
sketch1.addConstraint(Sketcher.Constraint("Horizontal", 35))
sketch1.addConstraint(Sketcher.Constraint("Vertical", 37))
sketch1.addConstraint(Sketcher.Constraint("Horizontal", 39))
sketch1.addConstraint(Sketcher.Constraint("Vertical", 41))
sketch1.addConstraint(Sketcher.Constraint("Horizontal", 43))
sketch1.addConstraint(Sketcher.Constraint("Vertical", 45))
sketch1.addConstraint(Sketcher.Constraint("Horizontal", 47))
sketch1.addConstraint(Sketcher.Constraint("Vertical", 49))
sketch1.addConstraint(Sketcher.Constraint("Horizontal", 50))
sketch1.addConstraint(Sketcher.Constraint("Vertical", 52))
sketch1.addConstraint(Sketcher.Constraint("Horizontal", 54))
sketch1.addConstraint(Sketcher.Constraint("Vertical", 56))
sketch1.addConstraint(Sketcher.Constraint("Horizontal", 58))
sketch1.addConstraint(Sketcher.Constraint("Vertical", 61))
sketch1.addConstraint(Sketcher.Constraint("Horizontal", 63))
sketch1.addConstraint(Sketcher.Constraint("Vertical", 65))
sketch1.addConstraint(Sketcher.Constraint("Vertical", 69))
sketch1.addConstraint(Sketcher.Constraint("Vertical", 74))
sketch1.addConstraint(Sketcher.Constraint("Horizontal", 76))
sketch1.addConstraint(Sketcher.Constraint("Horizontal", 81))
sketch1.addConstraint(Sketcher.Constraint("Horizontal", 85))
sketch1.addConstraint(Sketcher.Constraint("Coincident", 86, 3, -1, 1))
sketch1.addConstraint(Sketcher.Constraint("Coincident", 60, 3, 27, 3))
sketch1.addConstraint(Sketcher.Constraint("Coincident", 77, 3, 27, 3))
sketch1.addConstraint(Sketcher.Constraint("Equal", 3, 6))
sketch1.addConstraint(Sketcher.Constraint("Equal", 6, 8))
sketch1.addConstraint(Sketcher.Constraint("Equal", 8, 10))
sketch1.addConstraint(Sketcher.Constraint("Equal", 10, 16))
sketch1.addConstraint(Sketcher.Constraint("Equal", 16, 18))
sketch1.addConstraint(Sketcher.Constraint("Equal", 18, 20))
sketch1.addConstraint(Sketcher.Constraint("Equal", 20, 23))
sketch1.addConstraint(Sketcher.Constraint("Equal", 1, 25))
sketch1.addConstraint(Sketcher.Constraint("Equal", 25, 29))
sketch1.addConstraint(Sketcher.Constraint("Equal", 23, 31))
sketch1.addConstraint(Sketcher.Constraint("Equal", 31, 34))
sketch1.addConstraint(Sketcher.Constraint("Equal", 34, 36))
sketch1.addConstraint(Sketcher.Constraint("Equal", 36, 38))
sketch1.addConstraint(Sketcher.Constraint("Equal", 38, 44))
sketch1.addConstraint(Sketcher.Constraint("Equal", 44, 46))
sketch1.addConstraint(Sketcher.Constraint("Equal", 46, 48))
sketch1.addConstraint(Sketcher.Constraint("Equal", 48, 51))
sketch1.addConstraint(Sketcher.Constraint("Equal", 53, 55))
sketch1.addConstraint(Sketcher.Constraint("Equal", 55, 57))
sketch1.addConstraint(Sketcher.Constraint("Equal", 57, 59))
sketch1.addConstraint(Sketcher.Constraint("Equal", 59, 62))
sketch1.addConstraint(Sketcher.Constraint("Equal", 62, 64))
sketch1.addConstraint(Sketcher.Constraint("Equal", 64, 66))
sketch1.addConstraint(Sketcher.Constraint("Equal", 66, 68))
sketch1.addConstraint(Sketcher.Constraint("Equal", 68, 70))
sketch1.addConstraint(Sketcher.Constraint("Equal", 70, 72))
sketch1.addConstraint(Sketcher.Constraint("Equal", 72, 73))
sketch1.addConstraint(Sketcher.Constraint("Equal", 73, 75))
sketch1.addConstraint(Sketcher.Constraint("Equal", 60, 77))
sketch1.addConstraint(Sketcher.Constraint("Equal", 75, 78))
sketch1.addConstraint(Sketcher.Constraint("Equal", 78, 80))
sketch1.addConstraint(Sketcher.Constraint("Equal", 80, 82))
sketch1.addConstraint(Sketcher.Constraint("Equal", 82, 84))
sketch1.addConstraint(Sketcher.Constraint("Symmetric", 25, 3, 29, 3, -1, 1))
sketch1.addConstraint(Sketcher.Constraint("Symmetric", 62, 3, 75, 3, -1, 1))
sketch1.addConstraint(Sketcher.Constraint("Symmetric", 10, 3, 16, 3, -2))
sketch1.addConstraint(Sketcher.Constraint("Symmetric", 6, 3, 20, 3, -2))
sketch1.addConstraint(Sketcher.Constraint("Symmetric", 3, 3, 23, 3, -2))
sketch1.addConstraint(Sketcher.Constraint("Symmetric", 38, 3, 44, 3, -1))
sketch1.addConstraint(Sketcher.Constraint("Symmetric", 34, 3, 48, 3, -1))
sketch1.addConstraint(Sketcher.Constraint("Symmetric", 31, 3, 51, 3, -1))
sketch1.addConstraint(Sketcher.Constraint("Perpendicular", 12, 14))
sketch1.addConstraint(Sketcher.Constraint("Parallel", 14, 40))
sketch1.addConstraint(Sketcher.Constraint("Perpendicular", 40, 42))
sketch1.addConstraint(Sketcher.Constraint("Perpendicular", 42, 67))
sketch1.addConstraint(Sketcher.Constraint("Perpendicular", 67, 71))
sketch1.addConstraint(Sketcher.Constraint("Parallel", 71, 79))
sketch1.addConstraint(Sketcher.Constraint("Perpendicular", 79, 83))
sketch1.addConstraint(Sketcher.Constraint("Horizontal", 16, 3, 62, 3))
sketch1.addConstraint(Sketcher.Constraint("Horizontal", 11, 2, 14, 2))
sketch1.addConstraint(Sketcher.Constraint("Horizontal", 25, 2, 62, 1))
sketch1.addConstraint(Sketcher.Constraint("Horizontal", 79, 2, 82, 1))
sketch1.addConstraint(Sketcher.Constraint("Vertical", 44, 3, 73, 3))
sketch1.addConstraint(Sketcher.Constraint("Vertical", 39, 2, 42, 2))
sketch1.addConstraint(Sketcher.Constraint("Equal", 24, 0))
sketch1.addConstraint(Sketcher.Constraint("Equal", 50, 4))
sketch1.addConstraint(Sketcher.Constraint("Equal", 43, 11))
sketch1.addConstraint(Sketcher.Constraint("Equal", 28, 26))
sketch1.addConstraint(Sketcher.Constraint("Equal", 21, 33))
sketch1.addConstraint(Sketcher.Constraint("Equal", 17, 37))
sketch1.addConstraint(Sketcher.Constraint("Equal", 13, 41))
sketch1.addConstraint(Sketcher.Constraint("Equal", 58, 52))
sketch1.addConstraint(Sketcher.Constraint("Equal", 85, 65))
sketch1.addConstraint(Sketcher.Constraint("Equal", 81, 69))
sketch1.addConstraint(Sketcher.Constraint("Equal", 63, 74))
sketch1.addConstraint(Sketcher.Constraint("Equal", 71, 79))
sketch1.addConstraint(Sketcher.Constraint("Radius", 1, 2.0))
sketch1.addConstraint(Sketcher.Constraint("Radius", 27, 25.0))
sketch1.addConstraint(Sketcher.Constraint("Diameter", 86, 6.8))
sketch1.addConstraint(Sketcher.Constraint("Radius", 3, 0.3))
sketch1.addConstraint(Sketcher.Constraint("Radius", 53, 0.5))
sketch1.addConstraint(Sketcher.Constraint("DistanceX", 28, 2, 28, 1, 3.0))
sketch1.addConstraint(Sketcher.Constraint("DistanceX", 2, 1, 2, 2, 7.5))
sketch1.addConstraint(Sketcher.Constraint("DistanceX", 5, 1, 5, 2, 0.8))
sketch1.addConstraint(Sketcher.Constraint("DistanceX", 13, 1, 13, 2, 8.5))
sketch1.addConstraint(Sketcher.Constraint("DistanceX", 32, 1, 32, 2, 0.7))
sketch1.addConstraint(Sketcher.Constraint("DistanceX", 39, 1, 39, 2, 2.7))
sketch1.addConstraint(Sketcher.Constraint("DistanceX", 54, 1, 54, 2, 2.3))
sketch1.addConstraint(Sketcher.Constraint("DistanceX", 9, 2, 9, 1, 3.55))
sketch1.addConstraint(Sketcher.Constraint("DistanceX", 63, 2, 63, 1, 1.75))
sketch1.addConstraint(Sketcher.Constraint("DistanceX", -1, 1, 68, 3, 6.2))
sketch1.addConstraint(Sketcher.Constraint("DistanceX", 53, 3, -1, 1, 12.65))
sketch1.addConstraint(Sketcher.Constraint("DistanceY", 53, 3, -1, 1, 10.35))
sketch1.addConstraint(Sketcher.Constraint("Distance", 71, 1.18727))
sketch1.addConstraint(Sketcher.Constraint("DistanceX", 81, 2, 81, 1, 7.785786))
pad1 = body.newObject("PartDesign::Pad", "Pad")
pad1.Profile = sketch1
pad1.Length = 1000

doc.recompute()
